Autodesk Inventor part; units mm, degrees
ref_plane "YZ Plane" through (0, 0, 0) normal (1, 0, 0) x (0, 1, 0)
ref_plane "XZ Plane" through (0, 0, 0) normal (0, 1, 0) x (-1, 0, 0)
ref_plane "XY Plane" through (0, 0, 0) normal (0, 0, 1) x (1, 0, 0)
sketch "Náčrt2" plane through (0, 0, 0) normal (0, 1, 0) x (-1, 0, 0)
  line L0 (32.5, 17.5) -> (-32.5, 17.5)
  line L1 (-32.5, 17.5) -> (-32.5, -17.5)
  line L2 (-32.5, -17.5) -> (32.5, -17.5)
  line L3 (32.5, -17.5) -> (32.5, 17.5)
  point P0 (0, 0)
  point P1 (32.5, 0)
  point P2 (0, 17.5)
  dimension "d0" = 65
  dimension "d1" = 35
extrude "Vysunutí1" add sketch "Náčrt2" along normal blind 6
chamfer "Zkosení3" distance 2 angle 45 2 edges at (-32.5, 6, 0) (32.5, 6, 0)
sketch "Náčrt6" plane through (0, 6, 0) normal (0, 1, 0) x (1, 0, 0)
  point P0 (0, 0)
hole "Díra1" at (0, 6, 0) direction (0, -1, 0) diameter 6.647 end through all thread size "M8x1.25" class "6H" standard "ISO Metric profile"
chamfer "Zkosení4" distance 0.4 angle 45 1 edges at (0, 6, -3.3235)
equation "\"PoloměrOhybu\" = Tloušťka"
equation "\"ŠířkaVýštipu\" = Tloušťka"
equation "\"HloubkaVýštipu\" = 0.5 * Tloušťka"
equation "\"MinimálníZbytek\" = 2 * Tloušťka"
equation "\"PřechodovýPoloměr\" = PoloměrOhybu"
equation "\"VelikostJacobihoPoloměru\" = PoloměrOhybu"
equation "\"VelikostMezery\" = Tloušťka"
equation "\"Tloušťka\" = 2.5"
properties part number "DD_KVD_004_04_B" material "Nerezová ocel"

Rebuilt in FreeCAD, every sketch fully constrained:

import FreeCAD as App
import Part
import Sketcher
Q = App.Units.Quantity


def edges_at(feature, points):
    """Names of the edges that pass closest to the given points."""
    edges = feature.Shape.Edges
    near = lambda p: min(range(len(edges)), key=lambda i: edges[i].distToShape(Part.Vertex(*p))[0])
    return sorted({f"Edge{near(p) + 1}" for p in points})


def add_polygon(sketch, points):
    """Adds a closed chain of lines whose ends are joined by coincident constraints."""
    first, n = sketch.GeometryCount, len(points)
    for a, b in zip(points, points[1:] + points[:1]):
        sketch.addGeometry(Part.LineSegment(App.Vector(*a, 0), App.Vector(*b, 0)), False)
    for i in range(n):
        sketch.addConstraint(Sketcher.Constraint("Coincident", first + i, 2, first + (i + 1) % n, 1))

doc = App.newDocument("Part")
params = doc.addObject("Spreadsheet::Sheet", "Params")
for row, (alias, value) in enumerate([
    ("sketch1_width", "65 mm"),
    ("sketch1_height", "35 mm"),
    ("pad1_length", "6 mm"),
    ("chamfer_size", "2 mm"),
    ("hole_diameter", "6.647 mm"),
    ("chamfer2_size", "0.4 mm"),
], start=1):
    params.set(f"A{row}", alias)
    params.set(f"B{row}", "=" + value)
    params.setAlias(f"B{row}", alias)

body = doc.addObject("PartDesign::Body", "Body")

# Sketch on XZ plane
sketch1 = body.newObject("Sketcher::SketchObject", "Sketch")
sketch1.AttachmentSupport = (doc.getObject("XZ_Plane"), [""])
sketch1.MapMode = "FlatFace"
add_polygon(sketch1, [(-32.5, -17.5), (-32.5, 17.5), (32.5, 17.5), (32.5, -17.5)])  # lines 0-3
sketch1.addConstraint(Sketcher.Constraint("Vertical", 0))
sketch1.addConstraint(Sketcher.Constraint("Horizontal", 1))
sketch1.addConstraint(Sketcher.Constraint("Vertical", 2))
sketch1.addConstraint(Sketcher.Constraint("Horizontal", 3))
sketch1.addConstraint(Sketcher.Constraint("Symmetric", 0, 2, 2, 2, -1, 1))
sketch1.addConstraint(Sketcher.Constraint("DistanceX", 1, 1, 1, 2, Q("65 mm")))
sketch1.addConstraint(Sketcher.Constraint("DistanceY", 0, 1, 0, 2, Q("35 mm")))
sketch1.setExpression("Constraints[9]", "Params.sketch1_width")
sketch1.setExpression("Constraints[10]", "Params.sketch1_height")
pad1 = body.newObject("PartDesign::Pad", "Pad")
pad1.Profile = sketch1
pad1.setExpression("Length", "Params.pad1_length")
pad1.Reversed = True
doc.recompute()

chamfer = body.newObject("PartDesign::Chamfer", "Chamfer")
chamfer.Base = (pad1, edges_at(pad1, [(-32.5, 6, 0), (32.5, 6, 0)]))
chamfer.setExpression("Size", "Params.chamfer_size")

# Sketch on XZ plane
sketch2 = body.newObject("Sketcher::SketchObject", "Sketch001")
sketch2.AttachmentSupport = (doc.getObject("XZ_Plane"), [""])
sketch2.MapMode = "FlatFace"
sketch2.AttachmentOffset = App.Placement(App.Vector(0, 0, -6), App.Rotation())
sketch2.addGeometry(Part.Circle(App.Vector(0, 0, 0), App.Vector(0, 0, 1), 3.3235), False)
sketch2.addConstraint(Sketcher.Constraint("Coincident", 0, 3, -1, 1))
sketch2.addConstraint(Sketcher.Constraint("Diameter", 0, Q("6.647 mm")))
doc.recompute()
hole = body.newObject("PartDesign::Hole", "Hole")
hole.Profile = sketch2
hole.ThreadType = "None"
hole.setExpression("Diameter", "Params.hole_diameter")
hole.DepthType = "ThroughAll"
hole.Reversed = True
doc.recompute()

chamfer2 = body.newObject("PartDesign::Chamfer", "Chamfer001")
chamfer2.Base = (hole, edges_at(hole, [(0, 6, -3.324)]))
chamfer2.setExpression("Size", "Params.chamfer2_size")

doc.recompute()
